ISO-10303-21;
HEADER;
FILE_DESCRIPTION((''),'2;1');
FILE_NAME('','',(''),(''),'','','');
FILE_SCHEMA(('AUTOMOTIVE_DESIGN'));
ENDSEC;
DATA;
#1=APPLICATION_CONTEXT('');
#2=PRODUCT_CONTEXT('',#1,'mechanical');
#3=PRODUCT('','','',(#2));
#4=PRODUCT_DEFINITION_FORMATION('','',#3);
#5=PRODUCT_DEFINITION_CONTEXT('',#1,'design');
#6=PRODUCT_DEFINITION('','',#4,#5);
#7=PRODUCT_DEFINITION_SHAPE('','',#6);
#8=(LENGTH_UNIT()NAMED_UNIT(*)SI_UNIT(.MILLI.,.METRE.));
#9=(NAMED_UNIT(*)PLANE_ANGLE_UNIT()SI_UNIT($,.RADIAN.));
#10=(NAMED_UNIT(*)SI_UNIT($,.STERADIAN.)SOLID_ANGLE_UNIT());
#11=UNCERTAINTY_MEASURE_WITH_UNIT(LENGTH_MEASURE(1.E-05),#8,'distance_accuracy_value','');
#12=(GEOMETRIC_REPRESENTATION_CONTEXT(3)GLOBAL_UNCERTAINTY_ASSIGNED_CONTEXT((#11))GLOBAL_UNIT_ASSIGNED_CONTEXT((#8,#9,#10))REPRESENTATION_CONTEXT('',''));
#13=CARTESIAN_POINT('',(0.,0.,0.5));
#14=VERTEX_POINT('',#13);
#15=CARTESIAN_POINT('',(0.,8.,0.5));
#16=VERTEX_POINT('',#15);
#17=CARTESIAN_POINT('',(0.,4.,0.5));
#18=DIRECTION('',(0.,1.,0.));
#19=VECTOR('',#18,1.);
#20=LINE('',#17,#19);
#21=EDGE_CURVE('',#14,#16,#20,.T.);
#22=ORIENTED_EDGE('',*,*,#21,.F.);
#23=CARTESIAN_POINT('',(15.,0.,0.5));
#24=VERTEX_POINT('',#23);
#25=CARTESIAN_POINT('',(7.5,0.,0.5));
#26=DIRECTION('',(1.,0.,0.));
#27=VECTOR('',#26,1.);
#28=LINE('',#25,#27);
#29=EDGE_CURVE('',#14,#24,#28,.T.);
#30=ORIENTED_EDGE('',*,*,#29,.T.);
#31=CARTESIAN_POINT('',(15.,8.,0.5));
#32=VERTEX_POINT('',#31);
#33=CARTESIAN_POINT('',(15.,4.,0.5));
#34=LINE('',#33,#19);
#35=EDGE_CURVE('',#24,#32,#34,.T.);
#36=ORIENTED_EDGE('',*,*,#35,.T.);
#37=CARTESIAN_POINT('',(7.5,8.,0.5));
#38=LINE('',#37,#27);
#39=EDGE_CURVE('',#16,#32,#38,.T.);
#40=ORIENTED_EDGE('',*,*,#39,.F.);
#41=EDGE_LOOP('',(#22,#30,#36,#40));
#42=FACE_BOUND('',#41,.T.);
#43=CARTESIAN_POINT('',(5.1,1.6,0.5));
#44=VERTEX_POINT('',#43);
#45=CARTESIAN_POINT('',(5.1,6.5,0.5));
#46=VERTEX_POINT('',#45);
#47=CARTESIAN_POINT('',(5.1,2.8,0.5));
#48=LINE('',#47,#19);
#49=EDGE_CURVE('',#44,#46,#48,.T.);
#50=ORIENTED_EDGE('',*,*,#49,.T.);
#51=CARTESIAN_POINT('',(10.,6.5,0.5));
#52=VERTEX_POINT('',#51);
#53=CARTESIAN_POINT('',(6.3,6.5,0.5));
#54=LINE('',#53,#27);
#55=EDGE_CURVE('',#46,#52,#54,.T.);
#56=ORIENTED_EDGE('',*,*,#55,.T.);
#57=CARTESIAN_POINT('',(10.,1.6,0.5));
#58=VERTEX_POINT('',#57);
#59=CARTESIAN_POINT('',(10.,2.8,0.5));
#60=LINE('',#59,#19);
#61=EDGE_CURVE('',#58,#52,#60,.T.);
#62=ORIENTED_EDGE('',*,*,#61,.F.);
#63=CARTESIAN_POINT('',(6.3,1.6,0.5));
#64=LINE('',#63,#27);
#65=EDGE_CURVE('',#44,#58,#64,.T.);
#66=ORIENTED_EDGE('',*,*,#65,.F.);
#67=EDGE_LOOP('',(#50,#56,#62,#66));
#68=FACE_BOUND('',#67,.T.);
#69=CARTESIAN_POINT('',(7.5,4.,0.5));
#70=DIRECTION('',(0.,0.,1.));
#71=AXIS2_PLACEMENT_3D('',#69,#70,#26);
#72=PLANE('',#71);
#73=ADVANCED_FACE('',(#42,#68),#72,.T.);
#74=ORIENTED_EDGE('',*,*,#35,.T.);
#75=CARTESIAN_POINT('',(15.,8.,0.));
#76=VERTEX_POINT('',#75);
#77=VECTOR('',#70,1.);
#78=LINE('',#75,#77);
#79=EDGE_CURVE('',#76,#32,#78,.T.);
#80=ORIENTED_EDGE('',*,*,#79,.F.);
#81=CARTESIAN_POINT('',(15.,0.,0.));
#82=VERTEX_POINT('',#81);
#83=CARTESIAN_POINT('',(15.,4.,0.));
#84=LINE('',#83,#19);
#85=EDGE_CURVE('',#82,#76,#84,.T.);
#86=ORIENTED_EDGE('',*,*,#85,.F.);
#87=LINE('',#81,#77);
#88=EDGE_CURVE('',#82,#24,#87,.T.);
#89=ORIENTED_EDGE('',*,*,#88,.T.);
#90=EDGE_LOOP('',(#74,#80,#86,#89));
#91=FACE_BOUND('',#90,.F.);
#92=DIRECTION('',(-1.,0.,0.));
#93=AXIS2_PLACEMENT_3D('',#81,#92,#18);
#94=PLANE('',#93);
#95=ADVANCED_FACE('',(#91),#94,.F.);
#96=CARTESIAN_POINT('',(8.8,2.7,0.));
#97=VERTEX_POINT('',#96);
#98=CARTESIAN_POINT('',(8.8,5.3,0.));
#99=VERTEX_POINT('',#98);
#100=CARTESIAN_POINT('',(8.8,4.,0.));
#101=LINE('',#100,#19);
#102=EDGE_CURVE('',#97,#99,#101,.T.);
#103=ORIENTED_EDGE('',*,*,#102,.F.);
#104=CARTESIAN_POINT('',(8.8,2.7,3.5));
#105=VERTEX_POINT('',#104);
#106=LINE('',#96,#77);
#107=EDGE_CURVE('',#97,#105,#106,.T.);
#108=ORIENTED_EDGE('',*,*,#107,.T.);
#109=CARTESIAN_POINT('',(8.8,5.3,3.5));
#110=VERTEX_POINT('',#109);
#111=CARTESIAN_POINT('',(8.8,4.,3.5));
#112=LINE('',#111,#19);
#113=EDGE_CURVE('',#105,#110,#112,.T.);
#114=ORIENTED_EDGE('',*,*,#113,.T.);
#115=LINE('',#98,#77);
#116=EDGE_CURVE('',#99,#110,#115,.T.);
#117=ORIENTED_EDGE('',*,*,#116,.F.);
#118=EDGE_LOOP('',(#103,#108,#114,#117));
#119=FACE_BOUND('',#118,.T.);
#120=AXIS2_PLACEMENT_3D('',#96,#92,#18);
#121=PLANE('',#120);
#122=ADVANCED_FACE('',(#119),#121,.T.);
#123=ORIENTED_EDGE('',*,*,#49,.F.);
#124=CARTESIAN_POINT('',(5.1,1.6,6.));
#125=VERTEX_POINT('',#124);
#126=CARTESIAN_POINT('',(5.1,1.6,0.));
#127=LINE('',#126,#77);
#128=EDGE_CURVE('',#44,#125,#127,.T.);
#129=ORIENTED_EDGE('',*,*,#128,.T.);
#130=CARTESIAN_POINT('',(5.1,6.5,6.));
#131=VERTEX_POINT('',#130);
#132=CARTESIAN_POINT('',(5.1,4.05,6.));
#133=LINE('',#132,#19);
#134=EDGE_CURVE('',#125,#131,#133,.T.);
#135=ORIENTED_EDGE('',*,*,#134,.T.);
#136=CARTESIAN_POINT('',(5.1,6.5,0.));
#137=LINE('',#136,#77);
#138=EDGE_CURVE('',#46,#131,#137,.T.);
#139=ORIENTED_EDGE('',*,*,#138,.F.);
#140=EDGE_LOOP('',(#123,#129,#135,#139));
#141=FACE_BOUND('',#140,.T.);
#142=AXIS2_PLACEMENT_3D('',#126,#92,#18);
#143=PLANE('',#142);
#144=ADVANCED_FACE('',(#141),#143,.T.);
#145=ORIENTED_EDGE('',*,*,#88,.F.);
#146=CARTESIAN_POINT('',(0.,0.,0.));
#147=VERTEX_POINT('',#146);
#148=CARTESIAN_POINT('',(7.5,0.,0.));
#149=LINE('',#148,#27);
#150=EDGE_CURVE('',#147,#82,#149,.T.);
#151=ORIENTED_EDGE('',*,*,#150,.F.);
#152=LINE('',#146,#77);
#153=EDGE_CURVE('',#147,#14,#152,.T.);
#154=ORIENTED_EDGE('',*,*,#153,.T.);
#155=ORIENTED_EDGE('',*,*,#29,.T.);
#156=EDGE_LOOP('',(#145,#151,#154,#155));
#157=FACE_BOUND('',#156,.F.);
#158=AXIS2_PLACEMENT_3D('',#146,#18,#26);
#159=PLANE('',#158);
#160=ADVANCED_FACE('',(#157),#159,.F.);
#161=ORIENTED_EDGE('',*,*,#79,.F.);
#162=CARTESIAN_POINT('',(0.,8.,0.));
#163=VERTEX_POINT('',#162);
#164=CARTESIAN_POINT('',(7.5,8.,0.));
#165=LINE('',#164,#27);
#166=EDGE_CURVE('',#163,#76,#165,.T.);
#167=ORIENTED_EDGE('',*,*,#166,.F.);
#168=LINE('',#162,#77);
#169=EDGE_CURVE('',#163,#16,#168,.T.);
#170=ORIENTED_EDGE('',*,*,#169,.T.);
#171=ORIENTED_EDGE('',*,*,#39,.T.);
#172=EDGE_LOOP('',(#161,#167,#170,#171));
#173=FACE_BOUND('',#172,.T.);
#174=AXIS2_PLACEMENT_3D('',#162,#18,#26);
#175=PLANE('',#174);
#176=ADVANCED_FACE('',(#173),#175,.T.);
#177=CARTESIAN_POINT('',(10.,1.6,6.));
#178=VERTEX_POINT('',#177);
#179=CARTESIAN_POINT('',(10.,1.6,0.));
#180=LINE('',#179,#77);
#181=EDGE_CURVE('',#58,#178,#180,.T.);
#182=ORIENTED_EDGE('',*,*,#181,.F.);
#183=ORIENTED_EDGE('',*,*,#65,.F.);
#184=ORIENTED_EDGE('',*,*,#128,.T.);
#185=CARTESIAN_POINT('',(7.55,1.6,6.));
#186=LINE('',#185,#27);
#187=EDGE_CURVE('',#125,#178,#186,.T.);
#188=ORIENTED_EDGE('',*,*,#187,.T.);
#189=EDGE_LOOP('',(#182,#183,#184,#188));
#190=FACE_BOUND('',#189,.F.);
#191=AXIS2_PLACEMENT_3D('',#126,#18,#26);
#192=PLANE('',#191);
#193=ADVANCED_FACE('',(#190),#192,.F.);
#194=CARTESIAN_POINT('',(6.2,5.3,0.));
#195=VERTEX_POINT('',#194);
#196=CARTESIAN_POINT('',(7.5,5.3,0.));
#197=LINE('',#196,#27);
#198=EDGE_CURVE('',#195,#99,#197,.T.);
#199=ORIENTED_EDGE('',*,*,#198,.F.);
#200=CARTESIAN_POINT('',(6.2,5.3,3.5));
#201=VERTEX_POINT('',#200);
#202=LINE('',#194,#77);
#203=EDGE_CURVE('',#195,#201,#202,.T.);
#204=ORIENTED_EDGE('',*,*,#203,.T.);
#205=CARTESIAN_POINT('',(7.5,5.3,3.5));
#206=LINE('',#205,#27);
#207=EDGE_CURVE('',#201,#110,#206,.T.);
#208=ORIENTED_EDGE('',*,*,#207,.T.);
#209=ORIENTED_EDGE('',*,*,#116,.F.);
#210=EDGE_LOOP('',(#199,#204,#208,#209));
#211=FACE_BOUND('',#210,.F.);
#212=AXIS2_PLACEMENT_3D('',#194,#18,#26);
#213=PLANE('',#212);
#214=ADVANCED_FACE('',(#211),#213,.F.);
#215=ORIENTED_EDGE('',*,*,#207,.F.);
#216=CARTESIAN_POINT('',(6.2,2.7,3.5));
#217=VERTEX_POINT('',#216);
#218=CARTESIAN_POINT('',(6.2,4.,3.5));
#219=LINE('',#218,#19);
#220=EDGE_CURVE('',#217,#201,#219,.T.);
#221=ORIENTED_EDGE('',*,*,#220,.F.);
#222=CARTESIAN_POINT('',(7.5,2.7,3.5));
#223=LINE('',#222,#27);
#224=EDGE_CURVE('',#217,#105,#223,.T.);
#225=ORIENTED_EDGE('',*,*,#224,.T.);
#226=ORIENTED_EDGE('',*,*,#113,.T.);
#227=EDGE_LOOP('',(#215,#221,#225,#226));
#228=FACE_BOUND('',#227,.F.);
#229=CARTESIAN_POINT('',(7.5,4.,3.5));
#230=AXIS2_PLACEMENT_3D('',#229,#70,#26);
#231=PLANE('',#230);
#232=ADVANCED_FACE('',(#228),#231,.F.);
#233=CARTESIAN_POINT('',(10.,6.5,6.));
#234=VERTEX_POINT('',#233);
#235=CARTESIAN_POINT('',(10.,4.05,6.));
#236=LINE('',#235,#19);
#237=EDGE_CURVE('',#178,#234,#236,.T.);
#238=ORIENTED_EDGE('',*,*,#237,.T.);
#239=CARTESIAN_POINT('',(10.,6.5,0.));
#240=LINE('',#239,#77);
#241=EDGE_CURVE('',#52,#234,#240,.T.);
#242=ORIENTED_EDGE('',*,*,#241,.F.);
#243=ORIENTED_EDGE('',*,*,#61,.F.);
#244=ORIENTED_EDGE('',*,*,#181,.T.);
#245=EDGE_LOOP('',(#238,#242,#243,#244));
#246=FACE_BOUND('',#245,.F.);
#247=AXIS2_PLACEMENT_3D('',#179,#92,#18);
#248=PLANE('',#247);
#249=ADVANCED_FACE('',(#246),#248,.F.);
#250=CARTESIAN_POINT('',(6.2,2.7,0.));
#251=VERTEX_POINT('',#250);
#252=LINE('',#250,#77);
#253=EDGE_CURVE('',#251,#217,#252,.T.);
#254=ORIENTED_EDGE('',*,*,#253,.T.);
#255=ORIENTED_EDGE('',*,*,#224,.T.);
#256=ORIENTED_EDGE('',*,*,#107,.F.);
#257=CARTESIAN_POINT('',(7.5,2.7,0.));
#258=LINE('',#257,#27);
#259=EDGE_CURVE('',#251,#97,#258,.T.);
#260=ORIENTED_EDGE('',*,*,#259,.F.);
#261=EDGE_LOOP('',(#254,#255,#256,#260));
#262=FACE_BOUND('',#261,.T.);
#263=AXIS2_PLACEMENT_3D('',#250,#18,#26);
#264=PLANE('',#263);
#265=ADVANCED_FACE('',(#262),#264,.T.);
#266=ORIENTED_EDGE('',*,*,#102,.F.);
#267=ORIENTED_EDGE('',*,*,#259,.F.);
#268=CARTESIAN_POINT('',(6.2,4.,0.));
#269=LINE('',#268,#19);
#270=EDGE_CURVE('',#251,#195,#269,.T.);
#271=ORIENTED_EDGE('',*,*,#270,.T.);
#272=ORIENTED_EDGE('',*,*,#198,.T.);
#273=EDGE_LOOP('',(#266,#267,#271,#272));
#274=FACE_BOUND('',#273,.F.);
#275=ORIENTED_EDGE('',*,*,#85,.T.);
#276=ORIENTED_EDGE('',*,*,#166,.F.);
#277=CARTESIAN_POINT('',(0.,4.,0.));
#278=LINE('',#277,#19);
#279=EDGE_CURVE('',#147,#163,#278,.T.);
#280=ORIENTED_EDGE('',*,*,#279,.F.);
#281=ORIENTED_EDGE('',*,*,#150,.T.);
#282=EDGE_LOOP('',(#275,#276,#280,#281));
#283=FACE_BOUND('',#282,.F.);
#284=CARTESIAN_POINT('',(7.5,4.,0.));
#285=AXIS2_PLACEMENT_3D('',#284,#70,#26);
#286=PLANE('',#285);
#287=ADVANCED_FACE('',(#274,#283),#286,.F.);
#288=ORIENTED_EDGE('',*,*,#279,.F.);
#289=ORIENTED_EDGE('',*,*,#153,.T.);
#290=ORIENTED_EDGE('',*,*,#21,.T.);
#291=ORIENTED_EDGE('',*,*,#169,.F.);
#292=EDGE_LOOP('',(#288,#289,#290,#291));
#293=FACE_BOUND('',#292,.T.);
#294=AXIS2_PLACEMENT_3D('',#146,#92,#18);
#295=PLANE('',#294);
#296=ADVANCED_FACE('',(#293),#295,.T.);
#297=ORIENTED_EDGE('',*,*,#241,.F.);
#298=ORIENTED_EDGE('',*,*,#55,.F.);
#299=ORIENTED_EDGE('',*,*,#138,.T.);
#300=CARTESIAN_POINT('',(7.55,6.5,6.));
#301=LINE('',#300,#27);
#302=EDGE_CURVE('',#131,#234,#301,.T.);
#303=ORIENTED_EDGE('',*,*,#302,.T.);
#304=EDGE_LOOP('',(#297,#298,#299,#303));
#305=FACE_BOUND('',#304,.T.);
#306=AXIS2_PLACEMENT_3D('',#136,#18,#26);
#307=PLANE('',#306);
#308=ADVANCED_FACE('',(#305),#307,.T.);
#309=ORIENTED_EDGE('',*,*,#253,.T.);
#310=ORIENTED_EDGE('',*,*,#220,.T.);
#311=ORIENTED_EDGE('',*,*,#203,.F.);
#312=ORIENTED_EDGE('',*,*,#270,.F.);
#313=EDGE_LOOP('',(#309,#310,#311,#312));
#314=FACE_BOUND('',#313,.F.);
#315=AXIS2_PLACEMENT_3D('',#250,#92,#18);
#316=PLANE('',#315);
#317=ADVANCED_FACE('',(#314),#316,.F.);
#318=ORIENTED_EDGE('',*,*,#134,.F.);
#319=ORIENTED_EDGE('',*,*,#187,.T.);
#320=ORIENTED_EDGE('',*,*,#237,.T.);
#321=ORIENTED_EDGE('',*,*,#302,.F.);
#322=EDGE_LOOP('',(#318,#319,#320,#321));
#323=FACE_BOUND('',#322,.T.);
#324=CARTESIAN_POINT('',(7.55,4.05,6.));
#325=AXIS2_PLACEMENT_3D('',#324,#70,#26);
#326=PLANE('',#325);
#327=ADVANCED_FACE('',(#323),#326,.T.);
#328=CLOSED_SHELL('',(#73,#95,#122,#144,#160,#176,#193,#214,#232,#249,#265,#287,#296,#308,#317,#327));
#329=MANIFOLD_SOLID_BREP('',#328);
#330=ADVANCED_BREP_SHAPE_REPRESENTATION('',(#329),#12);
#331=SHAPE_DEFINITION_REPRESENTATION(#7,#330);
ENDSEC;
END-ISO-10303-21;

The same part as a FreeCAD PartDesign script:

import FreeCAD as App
import Part
import Sketcher
Q = App.Units.Quantity

doc = App.newDocument("Part")
body = doc.addObject("PartDesign::Body", "Body")

sketch1 = body.newObject("Sketcher::SketchObject", "Sketch")
sketch1.AttachmentSupport = (doc.getObject("XY_Plane"), [""])
sketch1.MapMode = "FlatFace"
sketch1.addGeometry(Part.LineSegment(App.Vector(6.2, 5.3, 0), App.Vector(6.2, 2.7, 0)), False)
sketch1.addGeometry(Part.LineSegment(App.Vector(6.2, 2.7, 0), App.Vector(8.8, 2.7, 0)), False)
sketch1.addGeometry(Part.LineSegment(App.Vector(8.8, 2.7, 0), App.Vector(8.8, 5.3, 0)), False)
sketch1.addGeometry(Part.LineSegment(App.Vector(8.8, 5.3, 0), App.Vector(6.2, 5.3, 0)), False)
sketch1.addConstraint(Sketcher.Constraint("Coincident", 0, 2, 1, 1))
sketch1.addConstraint(Sketcher.Constraint("Coincident", 1, 2, 2, 1))
sketch1.addConstraint(Sketcher.Constraint("Coincident", 2, 2, 3, 1))
sketch1.addConstraint(Sketcher.Constraint("Coincident", 3, 2, 0, 1))
sketch1.addConstraint(Sketcher.Constraint("Vertical", 0))
sketch1.addConstraint(Sketcher.Constraint("Horizontal", 1))
sketch1.addConstraint(Sketcher.Constraint("Vertical", 2))
sketch1.addConstraint(Sketcher.Constraint("Horizontal", 3))
sketch1.addConstraint(Sketcher.Constraint("Equal", 3, 0))
sketch1.addConstraint(Sketcher.Constraint("DistanceX", 1, 1, 1, 2, Q("2.6 mm")))
sketch1.addConstraint(Sketcher.Constraint("DistanceX", -1, 1, 0, 2, Q("6.2 mm")))
sketch1.addConstraint(Sketcher.Constraint("DistanceY", -1, 1, 0, 2, Q("2.7 mm")))
pad1 = body.newObject("PartDesign::Pad", "Pad")
pad1.Profile = sketch1
pad1.Length = 3.5
body2 = doc.addObject("PartDesign::Body", "Body001")

sketch2 = body2.newObject("Sketcher::SketchObject", "Sketch001")
sketch2.AttachmentSupport = (doc.getObject("XY_Plane001"), [""])
sketch2.MapMode = "FlatFace"
sketch2.addGeometry(Part.LineSegment(App.Vector(0, 8, 0), App.Vector(0, 0, 0)), False)
sketch2.addGeometry(Part.LineSegment(App.Vector(0, 0, 0), App.Vector(15, 0, 0)), False)
sketch2.addGeometry(Part.LineSegment(App.Vector(15, 0, 0), App.Vector(15, 8, 0)), False)
sketch2.addGeometry(Part.LineSegment(App.Vector(15, 8, 0), App.Vector(0, 8, 0)), False)
sketch2.addConstraint(Sketcher.Constraint("Coincident", 0, 2, 1, 1))
sketch2.addConstraint(Sketcher.Constraint("Coincident", 1, 2, 2, 1))
sketch2.addConstraint(Sketcher.Constraint("Coincident", 2, 2, 3, 1))
sketch2.addConstraint(Sketcher.Constraint("Coincident", 3, 2, 0, 1))
sketch2.addConstraint(Sketcher.Constraint("Vertical", 0))
sketch2.addConstraint(Sketcher.Constraint("Horizontal", 1))
sketch2.addConstraint(Sketcher.Constraint("Vertical", 2))
sketch2.addConstraint(Sketcher.Constraint("Horizontal", 3))
sketch2.addConstraint(Sketcher.Constraint("Coincident", 0, 2, -1, 1))
sketch2.addConstraint(Sketcher.Constraint("DistanceX", 1, 1, 1, 2, Q("15 mm")))
sketch2.addConstraint(Sketcher.Constraint("DistanceY", 0, 2, 0, 1, Q("8 mm")))
pad2 = body2.newObject("PartDesign::Pad", "Pad001")
pad2.Profile = sketch2
pad2.Length = 0.5
body3 = doc.addObject("PartDesign::Body", "Body002")

sketch3 = body3.newObject("Sketcher::SketchObject", "Sketch002")
sketch3.AttachmentSupport = (doc.getObject("XY_Plane002"), [""])
sketch3.MapMode = "FlatFace"
sketch3.addGeometry(Part.LineSegment(App.Vector(5.1, 6.5, 0), App.Vector(5.1, 1.6, 0)), False)
sketch3.addGeometry(Part.LineSegment(App.Vector(5.1, 1.6, 0), App.Vector(10, 1.6, 0)), False)
sketch3.addGeometry(Part.LineSegment(App.Vector(10, 1.6, 0), App.Vector(10, 6.5, 0)), False)
sketch3.addGeometry(Part.LineSegment(App.Vector(10, 6.5, 0), App.Vector(5.1, 6.5, 0)), False)
sketch3.addConstraint(Sketcher.Constraint("Coincident", 0, 2, 1, 1))
sketch3.addConstraint(Sketcher.Constraint("Coincident", 1, 2, 2, 1))
sketch3.addConstraint(Sketcher.Constraint("Coincident", 2, 2, 3, 1))
sketch3.addConstraint(Sketcher.Constraint("Coincident", 3, 2, 0, 1))
sketch3.addConstraint(Sketcher.Constraint("Vertical", 0))
sketch3.addConstraint(Sketcher.Constraint("Horizontal", 1))
sketch3.addConstraint(Sketcher.Constraint("Vertical", 2))
sketch3.addConstraint(Sketcher.Constraint("Horizontal", 3))
sketch3.addConstraint(Sketcher.Constraint("Equal", 3, 0))
sketch3.addConstraint(Sketcher.Constraint("DistanceX", 1, 1, 1, 2, Q("4.9 mm")))
sketch3.addConstraint(Sketcher.Constraint("DistanceX", -1, 1, 1, 2, Q("10 mm")))
sketch3.addConstraint(Sketcher.Constraint("DistanceY", -1, 1, 0, 2, Q("1.6 mm")))
pad3 = body3.newObject("PartDesign::Pad", "Pad002")
pad3.Profile = sketch3
pad3.Length = 6
doc.recompute()

boolean = body3.newObject("PartDesign::Boolean", "Boolean")
boolean.Type = "Fuse"
boolean.addObjects([body2])
doc.recompute()

boolean2 = body3.newObject("PartDesign::Boolean", "Boolean001")
boolean2.Type = "Cut"
boolean2.addObjects([body])

doc.recompute()
